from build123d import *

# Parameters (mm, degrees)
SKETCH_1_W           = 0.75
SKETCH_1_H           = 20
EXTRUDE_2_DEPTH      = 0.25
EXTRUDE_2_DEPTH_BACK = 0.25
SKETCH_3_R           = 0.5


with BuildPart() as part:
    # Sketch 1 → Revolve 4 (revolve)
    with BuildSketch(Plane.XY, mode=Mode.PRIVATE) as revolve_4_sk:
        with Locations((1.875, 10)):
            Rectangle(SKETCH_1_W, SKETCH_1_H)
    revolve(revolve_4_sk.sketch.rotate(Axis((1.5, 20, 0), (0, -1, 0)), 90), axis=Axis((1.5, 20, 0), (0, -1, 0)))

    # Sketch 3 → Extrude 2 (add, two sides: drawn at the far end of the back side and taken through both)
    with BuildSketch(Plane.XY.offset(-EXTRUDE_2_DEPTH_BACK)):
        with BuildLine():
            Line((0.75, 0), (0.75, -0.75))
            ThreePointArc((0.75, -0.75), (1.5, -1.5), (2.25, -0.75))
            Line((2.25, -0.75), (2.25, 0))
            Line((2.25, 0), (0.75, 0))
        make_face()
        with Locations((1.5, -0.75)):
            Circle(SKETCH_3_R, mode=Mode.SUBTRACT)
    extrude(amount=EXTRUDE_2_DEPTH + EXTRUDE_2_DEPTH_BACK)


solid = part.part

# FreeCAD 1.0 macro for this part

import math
import FreeCAD as App
import Part
import Sketcher

V = App.Vector
Q = App.Units.Quantity


def add_polygon(sketch, points):
    """Adds a closed chain of lines whose ends are joined by coincident constraints."""
    first, n = sketch.GeometryCount, len(points)
    for a, b in zip(points, points[1:] + points[:1]):
        sketch.addGeometry(Part.LineSegment(App.Vector(*a, 0), App.Vector(*b, 0)), False)
    for i in range(n):
        sketch.addConstraint(Sketcher.Constraint("Coincident", first + i, 2, first + (i + 1) % n, 1))

doc = App.newDocument("Part")
body = doc.addObject("PartDesign::Body", "Body")

sketch1 = body.newObject("Sketcher::SketchObject", "Sketch")
sketch1.AttachmentSupport = (doc.getObject("XY_Plane"), [""])
sketch1.MapMode = "FlatFace"
add_polygon(sketch1, [(1.5, 20), (1.5, 0), (2.2, 0), (2.2, 20)])
sketch1.addGeometry(Part.LineSegment(V(1.5, 20, 0), V(1.5, 0, 0)), True)
sketch1.addConstraint(Sketcher.Constraint("Vertical", 0))
sketch1.addConstraint(Sketcher.Constraint("Horizontal", 1))
sketch1.addConstraint(Sketcher.Constraint("Vertical", 2))
sketch1.addConstraint(Sketcher.Constraint("Horizontal", 3))
sketch1.addConstraint(Sketcher.Constraint("Vertical", 4))
sketch1.addConstraint(Sketcher.Constraint("Coincident", 4, 1, 3, 2))
sketch1.addConstraint(Sketcher.Constraint("PointOnObject", 0, 2, -1))
sketch1.addConstraint(Sketcher.Constraint("PointOnObject", 4, 2, -1))
sketch1.addConstraint(Sketcher.Constraint("DistanceY", 0, 2, 0, 1, Q("20 mm")))
sketch1.addConstraint(Sketcher.Constraint("DistanceX", 1, 1, 1, 2, Q("0.75 mm")))
sketch1.addConstraint(Sketcher.Constraint("DistanceX", -1, 1, 0, 2, Q("1.5 mm")))
revolution = body.newObject("PartDesign::Revolution", "Revolution")
revolution.Profile = sketch1
revolution.ReferenceAxis = (sketch1, ["Axis0"])
revolution.Angle = 360

sketch2 = body.newObject("Sketcher::SketchObject", "Sketch001")
sketch2.AttachmentSupport = (doc.getObject("XY_Plane"), [""])
sketch2.MapMode = "FlatFace"
sketch2.addGeometry(Part.LineSegment(V(0.8, 0, 0), V(0.8, -0.8, 0)), False)
sketch2.addGeometry(Part.ArcOfCircle(Part.Circle(V(1.5, -0.8, 0), V(0, 0, 1), 0.8), math.radians(180), math.radians(360)), False)
sketch2.addGeometry(Part.LineSegment(V(2.2, -0.8, 0), V(2.2, 0, 0)), False)
sketch2.addGeometry(Part.LineSegment(V(2.2, 0, 0), V(0.8, 0, 0)), False)
sketch2.addGeometry(Part.Circle(V(1.5, -0.8, 0), V(0, 0, 1), 0.5), False)
sketch2.addConstraint(Sketcher.Constraint("Tangent", 0, 2, 1, 1))
sketch2.addConstraint(Sketcher.Constraint("Tangent", 1, 2, 2, 1))
sketch2.addConstraint(Sketcher.Constraint("Coincident", 2, 2, 3, 1))
sketch2.addConstraint(Sketcher.Constraint("Coincident", 3, 2, 0, 1))
sketch2.addConstraint(Sketcher.Constraint("Vertical", 0))
sketch2.addConstraint(Sketcher.Constraint("Vertical", 2))
sketch2.addConstraint(Sketcher.Constraint("Horizontal", 3))
sketch2.addConstraint(Sketcher.Constraint("Coincident", 4, 3, 1, 3))
sketch2.addConstraint(Sketcher.Constraint("PointOnObject", 2, 2, -1))
sketch2.addConstraint(Sketcher.Constraint("Diameter", 4, Q("1 mm")))
sketch2.addConstraint(Sketcher.Constraint("Radius", 1, Q("0.75 mm")))
sketch2.addConstraint(Sketcher.Constraint("DistanceY", 0, 2, 0, 1, Q("0.75 mm")))
sketch2.addConstraint(Sketcher.Constraint("DistanceX", -1, 1, 1, 3, Q("1.5 mm")))
pad1 = body.newObject("PartDesign::Pad", "Pad")
pad1.Profile = sketch2
pad1.Type = "TwoLengths"
pad1.Length = 0.25
pad1.Length2 = 0.25

doc.recompute()
